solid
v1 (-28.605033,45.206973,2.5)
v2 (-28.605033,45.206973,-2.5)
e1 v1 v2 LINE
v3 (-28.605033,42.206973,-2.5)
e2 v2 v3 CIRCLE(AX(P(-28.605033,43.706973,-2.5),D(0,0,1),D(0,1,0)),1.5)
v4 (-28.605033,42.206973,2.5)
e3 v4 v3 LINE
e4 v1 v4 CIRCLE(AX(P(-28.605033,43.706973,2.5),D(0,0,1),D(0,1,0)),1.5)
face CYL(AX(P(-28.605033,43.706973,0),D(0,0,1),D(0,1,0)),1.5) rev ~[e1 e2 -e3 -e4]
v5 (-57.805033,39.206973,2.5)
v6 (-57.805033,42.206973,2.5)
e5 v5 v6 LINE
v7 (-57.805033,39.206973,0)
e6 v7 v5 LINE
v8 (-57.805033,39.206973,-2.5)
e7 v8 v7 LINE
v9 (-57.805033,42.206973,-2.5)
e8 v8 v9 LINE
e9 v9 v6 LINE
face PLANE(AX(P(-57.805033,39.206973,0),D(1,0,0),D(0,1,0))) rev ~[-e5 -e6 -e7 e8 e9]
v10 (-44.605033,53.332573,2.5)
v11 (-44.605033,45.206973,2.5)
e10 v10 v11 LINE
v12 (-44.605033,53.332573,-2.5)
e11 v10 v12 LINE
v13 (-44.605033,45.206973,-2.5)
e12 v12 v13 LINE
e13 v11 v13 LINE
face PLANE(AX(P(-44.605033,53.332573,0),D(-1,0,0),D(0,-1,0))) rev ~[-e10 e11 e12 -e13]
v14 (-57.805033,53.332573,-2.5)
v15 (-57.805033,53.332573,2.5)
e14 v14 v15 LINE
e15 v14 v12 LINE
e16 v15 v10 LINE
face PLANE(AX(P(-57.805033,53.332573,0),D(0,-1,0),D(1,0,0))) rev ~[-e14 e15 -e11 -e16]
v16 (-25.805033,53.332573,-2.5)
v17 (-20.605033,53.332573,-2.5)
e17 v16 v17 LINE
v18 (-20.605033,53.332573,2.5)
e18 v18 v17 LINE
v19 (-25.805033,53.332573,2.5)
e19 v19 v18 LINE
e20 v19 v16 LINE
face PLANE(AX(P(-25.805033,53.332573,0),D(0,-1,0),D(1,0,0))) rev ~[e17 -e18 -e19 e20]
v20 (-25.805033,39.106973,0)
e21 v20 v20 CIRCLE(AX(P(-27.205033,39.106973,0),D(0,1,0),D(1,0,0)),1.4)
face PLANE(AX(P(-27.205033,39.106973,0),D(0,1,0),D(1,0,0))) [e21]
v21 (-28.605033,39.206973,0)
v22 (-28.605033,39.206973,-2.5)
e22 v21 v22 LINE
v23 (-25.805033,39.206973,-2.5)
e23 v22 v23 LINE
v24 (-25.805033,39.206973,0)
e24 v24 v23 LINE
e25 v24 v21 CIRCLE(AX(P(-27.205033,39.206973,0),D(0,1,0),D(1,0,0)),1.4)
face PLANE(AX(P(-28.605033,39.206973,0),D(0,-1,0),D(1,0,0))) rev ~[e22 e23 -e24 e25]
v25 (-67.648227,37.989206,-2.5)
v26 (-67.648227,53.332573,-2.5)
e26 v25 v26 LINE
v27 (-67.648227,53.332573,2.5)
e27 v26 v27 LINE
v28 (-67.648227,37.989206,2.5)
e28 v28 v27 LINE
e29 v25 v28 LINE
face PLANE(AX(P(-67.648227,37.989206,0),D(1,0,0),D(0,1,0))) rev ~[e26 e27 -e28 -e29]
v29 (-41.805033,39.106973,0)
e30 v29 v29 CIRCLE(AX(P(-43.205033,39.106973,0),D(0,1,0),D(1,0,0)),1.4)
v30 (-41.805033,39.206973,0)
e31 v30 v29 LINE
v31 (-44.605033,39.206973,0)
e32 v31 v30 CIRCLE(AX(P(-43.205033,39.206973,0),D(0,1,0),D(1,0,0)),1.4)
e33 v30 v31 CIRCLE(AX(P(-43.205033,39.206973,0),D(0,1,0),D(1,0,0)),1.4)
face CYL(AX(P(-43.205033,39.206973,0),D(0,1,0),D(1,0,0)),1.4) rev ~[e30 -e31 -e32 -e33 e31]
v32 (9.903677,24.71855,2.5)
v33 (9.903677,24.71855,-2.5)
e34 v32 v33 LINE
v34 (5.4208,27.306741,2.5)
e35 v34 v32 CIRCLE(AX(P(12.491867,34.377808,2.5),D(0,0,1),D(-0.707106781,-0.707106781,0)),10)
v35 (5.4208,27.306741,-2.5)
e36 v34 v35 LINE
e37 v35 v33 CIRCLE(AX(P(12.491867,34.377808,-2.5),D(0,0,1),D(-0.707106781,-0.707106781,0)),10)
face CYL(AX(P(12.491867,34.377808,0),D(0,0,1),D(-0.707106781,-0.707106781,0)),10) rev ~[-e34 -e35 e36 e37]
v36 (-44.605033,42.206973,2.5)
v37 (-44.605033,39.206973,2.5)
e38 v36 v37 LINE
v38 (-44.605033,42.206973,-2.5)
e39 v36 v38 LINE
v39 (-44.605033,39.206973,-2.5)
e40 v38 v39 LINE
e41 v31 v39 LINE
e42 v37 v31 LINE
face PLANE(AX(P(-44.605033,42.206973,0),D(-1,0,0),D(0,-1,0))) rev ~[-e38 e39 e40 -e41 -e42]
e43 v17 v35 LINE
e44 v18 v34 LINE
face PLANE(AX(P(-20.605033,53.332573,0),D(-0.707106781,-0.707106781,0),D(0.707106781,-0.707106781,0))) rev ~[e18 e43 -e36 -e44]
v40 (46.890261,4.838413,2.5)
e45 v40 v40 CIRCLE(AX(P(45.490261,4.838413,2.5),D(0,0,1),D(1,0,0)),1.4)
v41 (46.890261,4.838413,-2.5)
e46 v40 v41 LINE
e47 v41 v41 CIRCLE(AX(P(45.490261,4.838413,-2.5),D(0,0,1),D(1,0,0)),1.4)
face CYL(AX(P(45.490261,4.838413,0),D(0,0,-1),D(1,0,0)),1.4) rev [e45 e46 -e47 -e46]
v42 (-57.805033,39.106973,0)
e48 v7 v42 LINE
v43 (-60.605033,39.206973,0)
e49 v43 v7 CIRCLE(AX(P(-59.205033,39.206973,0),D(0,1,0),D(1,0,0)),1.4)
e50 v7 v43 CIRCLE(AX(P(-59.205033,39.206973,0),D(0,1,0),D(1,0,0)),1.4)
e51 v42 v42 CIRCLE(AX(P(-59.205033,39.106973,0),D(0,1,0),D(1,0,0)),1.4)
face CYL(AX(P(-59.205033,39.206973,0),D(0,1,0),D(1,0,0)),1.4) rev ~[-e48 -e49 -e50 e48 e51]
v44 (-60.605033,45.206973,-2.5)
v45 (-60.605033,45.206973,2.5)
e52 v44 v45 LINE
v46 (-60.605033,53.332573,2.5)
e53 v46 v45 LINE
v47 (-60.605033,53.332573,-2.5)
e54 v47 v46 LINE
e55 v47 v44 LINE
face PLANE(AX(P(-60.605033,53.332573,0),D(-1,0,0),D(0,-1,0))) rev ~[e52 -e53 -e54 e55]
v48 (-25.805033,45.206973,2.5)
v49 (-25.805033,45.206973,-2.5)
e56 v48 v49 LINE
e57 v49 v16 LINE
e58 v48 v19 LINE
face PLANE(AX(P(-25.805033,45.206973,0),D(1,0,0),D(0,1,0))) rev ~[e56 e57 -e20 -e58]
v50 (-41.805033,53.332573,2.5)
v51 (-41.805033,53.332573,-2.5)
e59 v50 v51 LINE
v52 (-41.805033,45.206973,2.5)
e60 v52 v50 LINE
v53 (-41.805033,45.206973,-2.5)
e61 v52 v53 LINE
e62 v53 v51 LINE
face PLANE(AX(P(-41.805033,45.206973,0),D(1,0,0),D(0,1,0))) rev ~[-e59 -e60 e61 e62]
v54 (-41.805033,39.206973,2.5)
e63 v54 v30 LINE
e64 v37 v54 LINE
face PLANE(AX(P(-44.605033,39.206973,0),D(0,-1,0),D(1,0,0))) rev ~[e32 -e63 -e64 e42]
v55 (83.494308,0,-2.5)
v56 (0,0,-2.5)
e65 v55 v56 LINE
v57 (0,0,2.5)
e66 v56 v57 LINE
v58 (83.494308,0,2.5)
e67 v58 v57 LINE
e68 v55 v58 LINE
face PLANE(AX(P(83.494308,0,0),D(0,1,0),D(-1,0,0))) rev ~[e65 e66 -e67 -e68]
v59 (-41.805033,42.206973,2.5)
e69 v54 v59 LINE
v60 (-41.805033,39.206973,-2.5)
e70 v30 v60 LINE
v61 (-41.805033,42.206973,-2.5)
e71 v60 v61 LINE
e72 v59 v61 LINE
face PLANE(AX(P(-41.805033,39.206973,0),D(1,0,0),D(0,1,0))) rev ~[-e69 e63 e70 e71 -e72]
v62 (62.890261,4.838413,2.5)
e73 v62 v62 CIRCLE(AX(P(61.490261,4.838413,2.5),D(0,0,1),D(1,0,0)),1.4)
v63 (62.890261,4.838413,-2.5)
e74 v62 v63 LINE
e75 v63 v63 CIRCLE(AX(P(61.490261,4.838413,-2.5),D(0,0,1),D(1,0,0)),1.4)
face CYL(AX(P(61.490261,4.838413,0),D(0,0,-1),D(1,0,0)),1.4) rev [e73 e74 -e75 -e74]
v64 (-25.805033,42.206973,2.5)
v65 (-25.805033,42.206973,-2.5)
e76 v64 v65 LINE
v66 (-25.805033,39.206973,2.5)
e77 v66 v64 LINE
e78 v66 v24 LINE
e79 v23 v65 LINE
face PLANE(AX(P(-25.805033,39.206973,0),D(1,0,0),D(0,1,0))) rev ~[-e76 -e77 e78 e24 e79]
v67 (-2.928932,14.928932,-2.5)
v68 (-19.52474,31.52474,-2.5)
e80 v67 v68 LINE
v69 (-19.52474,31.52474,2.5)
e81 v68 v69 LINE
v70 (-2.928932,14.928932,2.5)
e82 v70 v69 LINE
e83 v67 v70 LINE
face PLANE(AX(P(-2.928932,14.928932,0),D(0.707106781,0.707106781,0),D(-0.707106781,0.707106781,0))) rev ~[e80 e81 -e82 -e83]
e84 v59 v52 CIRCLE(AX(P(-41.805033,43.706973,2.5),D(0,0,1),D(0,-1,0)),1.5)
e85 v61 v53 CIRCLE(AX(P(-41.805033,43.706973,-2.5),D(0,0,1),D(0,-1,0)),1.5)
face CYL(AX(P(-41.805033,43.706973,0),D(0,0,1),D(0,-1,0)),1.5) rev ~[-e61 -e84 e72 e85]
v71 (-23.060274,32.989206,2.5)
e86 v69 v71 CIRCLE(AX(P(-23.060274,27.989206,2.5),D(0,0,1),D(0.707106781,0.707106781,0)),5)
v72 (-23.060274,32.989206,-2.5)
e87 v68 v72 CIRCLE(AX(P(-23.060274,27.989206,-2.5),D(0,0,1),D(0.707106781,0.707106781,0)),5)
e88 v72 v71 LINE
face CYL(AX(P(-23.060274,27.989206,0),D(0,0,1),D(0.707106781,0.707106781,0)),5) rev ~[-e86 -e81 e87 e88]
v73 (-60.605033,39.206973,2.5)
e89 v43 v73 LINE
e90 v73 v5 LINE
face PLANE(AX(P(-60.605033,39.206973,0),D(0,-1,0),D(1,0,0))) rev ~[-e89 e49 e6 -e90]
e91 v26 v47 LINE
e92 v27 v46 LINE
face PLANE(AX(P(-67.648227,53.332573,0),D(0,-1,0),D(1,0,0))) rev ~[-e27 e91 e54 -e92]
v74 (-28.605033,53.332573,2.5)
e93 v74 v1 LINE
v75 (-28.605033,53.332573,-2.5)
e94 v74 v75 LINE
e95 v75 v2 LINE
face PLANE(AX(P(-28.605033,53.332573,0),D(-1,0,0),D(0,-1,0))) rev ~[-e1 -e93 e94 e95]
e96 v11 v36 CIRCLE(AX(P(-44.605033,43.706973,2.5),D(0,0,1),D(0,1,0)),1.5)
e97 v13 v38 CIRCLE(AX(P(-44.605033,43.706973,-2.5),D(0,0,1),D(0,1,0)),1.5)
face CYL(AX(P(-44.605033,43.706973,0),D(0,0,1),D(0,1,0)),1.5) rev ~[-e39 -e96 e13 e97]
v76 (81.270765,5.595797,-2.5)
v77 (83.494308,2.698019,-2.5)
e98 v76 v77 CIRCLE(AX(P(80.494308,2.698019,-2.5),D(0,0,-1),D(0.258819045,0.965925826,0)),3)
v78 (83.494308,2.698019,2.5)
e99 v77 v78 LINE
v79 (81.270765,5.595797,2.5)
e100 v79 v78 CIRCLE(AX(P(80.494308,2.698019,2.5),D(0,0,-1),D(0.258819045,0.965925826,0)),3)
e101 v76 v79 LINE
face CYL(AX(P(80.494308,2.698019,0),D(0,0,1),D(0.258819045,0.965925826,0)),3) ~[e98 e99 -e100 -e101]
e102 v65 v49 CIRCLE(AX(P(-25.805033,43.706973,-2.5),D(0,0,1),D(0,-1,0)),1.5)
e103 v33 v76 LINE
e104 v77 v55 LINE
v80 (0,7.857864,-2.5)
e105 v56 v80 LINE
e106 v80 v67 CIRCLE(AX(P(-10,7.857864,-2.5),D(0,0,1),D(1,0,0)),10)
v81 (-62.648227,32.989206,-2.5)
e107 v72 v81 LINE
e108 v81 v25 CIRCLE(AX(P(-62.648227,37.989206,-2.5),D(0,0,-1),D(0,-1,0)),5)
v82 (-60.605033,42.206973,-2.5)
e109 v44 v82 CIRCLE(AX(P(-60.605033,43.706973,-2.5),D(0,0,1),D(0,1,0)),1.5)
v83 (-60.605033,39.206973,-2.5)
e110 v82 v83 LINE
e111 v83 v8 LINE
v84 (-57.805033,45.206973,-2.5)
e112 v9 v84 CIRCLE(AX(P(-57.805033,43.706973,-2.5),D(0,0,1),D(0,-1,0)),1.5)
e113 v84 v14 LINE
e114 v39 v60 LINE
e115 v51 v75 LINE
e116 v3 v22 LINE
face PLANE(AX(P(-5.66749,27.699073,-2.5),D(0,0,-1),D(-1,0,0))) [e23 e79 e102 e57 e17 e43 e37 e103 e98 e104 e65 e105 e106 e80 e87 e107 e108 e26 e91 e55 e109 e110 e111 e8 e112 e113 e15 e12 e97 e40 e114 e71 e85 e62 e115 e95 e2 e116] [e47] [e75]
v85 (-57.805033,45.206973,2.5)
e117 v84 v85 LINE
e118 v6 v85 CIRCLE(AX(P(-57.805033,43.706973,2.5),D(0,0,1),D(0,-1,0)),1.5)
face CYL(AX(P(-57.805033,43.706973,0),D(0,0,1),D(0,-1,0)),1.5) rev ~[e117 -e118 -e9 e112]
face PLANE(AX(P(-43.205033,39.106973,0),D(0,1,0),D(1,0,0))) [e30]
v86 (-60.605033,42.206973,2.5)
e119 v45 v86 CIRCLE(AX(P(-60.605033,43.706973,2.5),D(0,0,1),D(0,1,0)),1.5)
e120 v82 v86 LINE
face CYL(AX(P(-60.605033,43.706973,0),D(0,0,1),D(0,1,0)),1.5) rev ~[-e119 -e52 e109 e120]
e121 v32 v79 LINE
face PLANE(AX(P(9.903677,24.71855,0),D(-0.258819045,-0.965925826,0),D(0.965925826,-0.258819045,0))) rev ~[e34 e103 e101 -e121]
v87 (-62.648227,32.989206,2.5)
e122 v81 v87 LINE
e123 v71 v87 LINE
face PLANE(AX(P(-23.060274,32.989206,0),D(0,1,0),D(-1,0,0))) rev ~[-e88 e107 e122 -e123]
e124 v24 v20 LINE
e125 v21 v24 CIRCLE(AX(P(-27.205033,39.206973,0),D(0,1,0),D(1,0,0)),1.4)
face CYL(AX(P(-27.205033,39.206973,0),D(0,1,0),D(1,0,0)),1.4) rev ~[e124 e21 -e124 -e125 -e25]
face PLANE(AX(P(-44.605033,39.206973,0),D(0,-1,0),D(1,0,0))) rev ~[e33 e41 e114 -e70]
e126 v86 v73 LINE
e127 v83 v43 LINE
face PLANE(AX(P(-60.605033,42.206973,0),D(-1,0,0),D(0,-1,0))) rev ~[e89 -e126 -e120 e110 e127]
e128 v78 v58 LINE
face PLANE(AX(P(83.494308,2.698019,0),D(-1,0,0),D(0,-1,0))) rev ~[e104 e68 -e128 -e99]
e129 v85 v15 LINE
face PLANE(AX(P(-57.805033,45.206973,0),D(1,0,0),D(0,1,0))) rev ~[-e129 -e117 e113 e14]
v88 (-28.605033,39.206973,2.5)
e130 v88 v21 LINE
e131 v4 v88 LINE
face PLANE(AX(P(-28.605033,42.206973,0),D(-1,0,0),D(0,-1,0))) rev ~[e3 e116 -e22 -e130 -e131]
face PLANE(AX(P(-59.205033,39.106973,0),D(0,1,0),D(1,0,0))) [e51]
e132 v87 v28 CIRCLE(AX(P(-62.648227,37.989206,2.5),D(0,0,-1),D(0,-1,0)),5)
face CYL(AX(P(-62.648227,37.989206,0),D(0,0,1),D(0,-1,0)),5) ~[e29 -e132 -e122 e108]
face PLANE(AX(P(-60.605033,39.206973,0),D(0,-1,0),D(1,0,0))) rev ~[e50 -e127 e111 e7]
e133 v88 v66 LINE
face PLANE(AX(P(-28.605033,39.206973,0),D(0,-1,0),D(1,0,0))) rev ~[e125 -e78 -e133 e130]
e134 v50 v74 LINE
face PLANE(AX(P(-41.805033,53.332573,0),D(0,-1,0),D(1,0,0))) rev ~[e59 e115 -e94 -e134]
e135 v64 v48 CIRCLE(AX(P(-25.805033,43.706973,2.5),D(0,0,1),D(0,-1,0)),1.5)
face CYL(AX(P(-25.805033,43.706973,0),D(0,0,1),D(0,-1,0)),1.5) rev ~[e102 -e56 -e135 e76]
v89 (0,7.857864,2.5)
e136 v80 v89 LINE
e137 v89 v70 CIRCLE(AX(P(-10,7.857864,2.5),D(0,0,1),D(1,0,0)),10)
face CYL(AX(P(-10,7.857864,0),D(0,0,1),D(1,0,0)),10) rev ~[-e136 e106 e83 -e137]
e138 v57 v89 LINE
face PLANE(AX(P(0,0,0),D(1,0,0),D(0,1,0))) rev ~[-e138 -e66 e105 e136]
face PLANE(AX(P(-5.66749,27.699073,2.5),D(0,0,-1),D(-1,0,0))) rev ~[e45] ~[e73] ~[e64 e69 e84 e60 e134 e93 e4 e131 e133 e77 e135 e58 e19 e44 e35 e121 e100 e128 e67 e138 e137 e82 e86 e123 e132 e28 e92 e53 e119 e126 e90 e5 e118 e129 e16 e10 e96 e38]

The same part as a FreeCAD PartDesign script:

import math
import FreeCAD as App
import Part
import Sketcher

V = App.Vector
Q = App.Units.Quantity

doc = App.newDocument("Part")
body = doc.addObject("PartDesign::Body", "Body")

sketch1 = body.newObject("Sketcher::SketchObject", "Sketch")
sketch1.AttachmentSupport = (doc.getObject("XY_Plane"), [""])
sketch1.MapMode = "FlatFace"
sketch1.addGeometry([
    Part.LineSegment(V(-44.6, 53.3, 0), V(-57.8, 53.3, 0)),
    Part.LineSegment(V(-57.8, 53.3, 0), V(-57.8, 45.2, 0)),
    Part.ArcOfCircle(Part.Circle(V(-57.8, 43.7, 0), V(0, 0, 1), 1.5), math.radians(-90), math.radians(90)),
    Part.LineSegment(V(-57.8, 42.2, 0), V(-57.8, 39.2, 0)),
    Part.LineSegment(V(-57.8, 39.2, 0), V(-60.6, 39.2, 0)),
    Part.LineSegment(V(-60.6, 39.2, 0), V(-60.6, 42.2, 0)),
    Part.ArcOfCircle(Part.Circle(V(-60.6, 43.7, 0), V(0, 0, 1), 1.5), math.radians(90), math.radians(270)),
    Part.LineSegment(V(-60.6, 45.2, 0), V(-60.6, 53.3, 0)),
    Part.LineSegment(V(-60.6, 53.3, 0), V(-67.6, 53.3, 0)),
    Part.LineSegment(V(-67.6, 53.3, 0), V(-67.6, 38, 0)),
    Part.ArcOfCircle(Part.Circle(V(-62.6, 38, 0), V(0, 0, 1), 5), math.radians(-180), math.radians(-90)),
    Part.LineSegment(V(-62.6, 33, 0), V(-23.1, 33, 0)),
    Part.ArcOfCircle(Part.Circle(V(-23.1, 28, 0), V(0, 0, 1), 5), math.radians(45), math.radians(90)),
    Part.LineSegment(V(-19.5, 31.5, 0), V(-2.9, 14.9, 0)),
    Part.ArcOfCircle(Part.Circle(V(-10, 7.9, 0), V(0, 0, 1), 10), math.radians(0), math.radians(45)),
    Part.LineSegment(V(0, 7.9, 0), V(0, 0, 0)),
    Part.LineSegment(V(0, 0, 0), V(83.5, 0, 0)),
    Part.LineSegment(V(83.5, 0, 0), V(83.5, 2.7, 0)),
    Part.ArcOfCircle(Part.Circle(V(80.5, 2.7, 0), V(0, 0, 1), 3), math.radians(0), math.radians(75)),
    Part.LineSegment(V(81.3, 5.6, 0), V(9.9, 24.7, 0)),
    Part.ArcOfCircle(Part.Circle(V(12.5, 34.4, 0), V(0, 0, 1), 10), math.radians(-135), math.radians(-105)),
    Part.LineSegment(V(5.4, 27.3, 0), V(-20.6, 53.3, 0)),
    Part.LineSegment(V(-20.6, 53.3, 0), V(-25.8, 53.3, 0)),
    Part.LineSegment(V(-25.8, 53.3, 0), V(-25.8, 45.2, 0)),
    Part.ArcOfCircle(Part.Circle(V(-25.8, 43.7, 0), V(0, 0, 1), 1.5), math.radians(-90), math.radians(90)),
    Part.LineSegment(V(-25.8, 42.2, 0), V(-25.8, 39.2, 0)),
    Part.LineSegment(V(-25.8, 39.2, 0), V(-28.6, 39.2, 0)),
    Part.LineSegment(V(-28.6, 39.2, 0), V(-28.6, 42.2, 0)),
    Part.ArcOfCircle(Part.Circle(V(-28.6, 43.7, 0), V(0, 0, 1), 1.5), math.radians(90), math.radians(270)),
    Part.LineSegment(V(-28.6, 45.2, 0), V(-28.6, 53.3, 0)),
    Part.LineSegment(V(-28.6, 53.3, 0), V(-41.8, 53.3, 0)),
    Part.LineSegment(V(-41.8, 53.3, 0), V(-41.8, 45.2, 0)),
    Part.ArcOfCircle(Part.Circle(V(-41.8, 43.7, 0), V(0, 0, 1), 1.5), math.radians(-90), math.radians(90)),
    Part.LineSegment(V(-41.8, 42.2, 0), V(-41.8, 39.2, 0)),
    Part.LineSegment(V(-41.8, 39.2, 0), V(-44.6, 39.2, 0)),
    Part.LineSegment(V(-44.6, 39.2, 0), V(-44.6, 42.2, 0)),
    Part.ArcOfCircle(Part.Circle(V(-44.6, 43.7, 0), V(0, 0, 1), 1.5), math.radians(90), math.radians(270)),
    Part.LineSegment(V(-44.6, 45.2, 0), V(-44.6, 53.3, 0)),
    Part.Circle(V(61.5, 4.8, 0), V(0, 0, 1), 1.4),
    Part.Circle(V(45.5, 4.8, 0), V(0, 0, 1), 1.4),
], False)
sketch1.addConstraint([
    Sketcher.Constraint("Coincident", 0, 2, 1, 1),
    Sketcher.Constraint("Coincident", 1, 2, 2, 2),
    Sketcher.Constraint("Coincident", 2, 1, 3, 1),
    Sketcher.Constraint("Coincident", 3, 2, 4, 1),
    Sketcher.Constraint("Coincident", 4, 2, 5, 1),
    Sketcher.Constraint("Coincident", 5, 2, 6, 2),
    Sketcher.Constraint("Coincident", 6, 1, 7, 1),
    Sketcher.Constraint("Coincident", 7, 2, 8, 1),
    Sketcher.Constraint("Coincident", 8, 2, 9, 1),
    Sketcher.Constraint("Tangent", 9, 2, 10, 1),
    Sketcher.Constraint("Tangent", 10, 2, 11, 1),
    Sketcher.Constraint("Tangent", 11, 2, 12, 2),
    Sketcher.Constraint("Tangent", 12, 1, 13, 1),
    Sketcher.Constraint("Tangent", 13, 2, 14, 2),
    Sketcher.Constraint("Tangent", 14, 1, 15, 1),
    Sketcher.Constraint("Coincident", 15, 2, 16, 1),
    Sketcher.Constraint("Coincident", 16, 2, 17, 1),
    Sketcher.Constraint("Tangent", 17, 2, 18, 1),
    Sketcher.Constraint("Tangent", 18, 2, 19, 1),
    Sketcher.Constraint("Tangent", 19, 2, 20, 2),
    Sketcher.Constraint("Tangent", 20, 1, 21, 1),
    Sketcher.Constraint("Coincident", 21, 2, 22, 1),
    Sketcher.Constraint("Coincident", 22, 2, 23, 1),
    Sketcher.Constraint("Coincident", 23, 2, 24, 2),
    Sketcher.Constraint("Coincident", 24, 1, 25, 1),
    Sketcher.Constraint("Coincident", 25, 2, 26, 1),
    Sketcher.Constraint("Coincident", 26, 2, 27, 1),
    Sketcher.Constraint("Coincident", 27, 2, 28, 2),
    Sketcher.Constraint("Coincident", 28, 1, 29, 1),
    Sketcher.Constraint("Coincident", 29, 2, 30, 1),
    Sketcher.Constraint("Coincident", 30, 2, 31, 1),
    Sketcher.Constraint("Coincident", 31, 2, 32, 2),
    Sketcher.Constraint("Coincident", 32, 1, 33, 1),
    Sketcher.Constraint("Coincident", 33, 2, 34, 1),
    Sketcher.Constraint("Coincident", 34, 2, 35, 1),
    Sketcher.Constraint("Coincident", 35, 2, 36, 2),
    Sketcher.Constraint("Coincident", 36, 1, 37, 1),
    Sketcher.Constraint("Coincident", 37, 2, 0, 1),
    Sketcher.Constraint("Horizontal", 0),
    Sketcher.Constraint("Vertical", 1),
    Sketcher.Constraint("Vertical", 3),
    Sketcher.Constraint("Horizontal", 4),
    Sketcher.Constraint("Vertical", 5),
    Sketcher.Constraint("Vertical", 7),
    Sketcher.Constraint("Horizontal", 8),
    Sketcher.Constraint("Vertical", 9),
    Sketcher.Constraint("Horizontal", 11),
    Sketcher.Constraint("Vertical", 15),
    Sketcher.Constraint("Horizontal", 16),
    Sketcher.Constraint("Vertical", 17),
    Sketcher.Constraint("Horizontal", 22),
    Sketcher.Constraint("Vertical", 23),
    Sketcher.Constraint("Vertical", 25),
    Sketcher.Constraint("Horizontal", 26),
    Sketcher.Constraint("Vertical", 27),
    Sketcher.Constraint("Vertical", 29),
    Sketcher.Constraint("Horizontal", 30),
    Sketcher.Constraint("Vertical", 31),
    Sketcher.Constraint("Vertical", 33),
    Sketcher.Constraint("Horizontal", 34),
    Sketcher.Constraint("Vertical", 35),
    Sketcher.Constraint("Vertical", 37),
    Sketcher.Constraint("Coincident", 15, 2, -1, 1),
    Sketcher.Constraint("Equal", 2, 6),
    Sketcher.Constraint("Equal", 10, 12),
    Sketcher.Constraint("Equal", 14, 20),
    Sketcher.Constraint("Equal", 6, 24),
    Sketcher.Constraint("Equal", 24, 28),
    Sketcher.Constraint("Equal", 28, 32),
    Sketcher.Constraint("Equal", 32, 36),
    Sketcher.Constraint("Equal", 38, 39),
    Sketcher.Constraint("Parallel", 13, 21),
    Sketcher.Constraint("Horizontal", 2, 3, 6, 3),
    Sketcher.Constraint("Horizontal", 6, 3, 24, 3),
    Sketcher.Constraint("Horizontal", 24, 3, 28, 3),
    Sketcher.Constraint("Horizontal", 28, 3, 32, 3),
    Sketcher.Constraint("Horizontal", 32, 3, 36, 3),
    Sketcher.Constraint("Horizontal", 38, 3, 39, 3),
    Sketcher.Constraint("Horizontal", 0, 2, 7, 2),
    Sketcher.Constraint("Horizontal", 8, 2, 21, 2),
    Sketcher.Constraint("Horizontal", 4, 2, 25, 2),
    Sketcher.Constraint("Horizontal", 22, 2, 29, 2),
    Sketcher.Constraint("Horizontal", 26, 2, 33, 2),
    Sketcher.Constraint("Vertical", 2, 3, 0, 2),
    Sketcher.Constraint("Vertical", 1, 2, 2, 1),
    Sketcher.Constraint("Vertical", 6, 3, 4, 2),
    Sketcher.Constraint("Vertical", 5, 2, 6, 1),
    Sketcher.Constraint("Vertical", 24, 3, 22, 2),
    Sketcher.Constraint("Vertical", 23, 2, 24, 1),
    Sketcher.Constraint("Vertical", 28, 3, 26, 2),
    Sketcher.Constraint("Vertical", 27, 2, 28, 1),
    Sketcher.Constraint("Vertical", 32, 3, 30, 2),
    Sketcher.Constraint("Vertical", 31, 2, 32, 1),
    Sketcher.Constraint("Vertical", 36, 3, 34, 2),
    Sketcher.Constraint("Vertical", 35, 2, 36, 1),
    Sketcher.Constraint("Equal", 4, 26),
    Sketcher.Constraint("Equal", 0, 30),
    Sketcher.Constraint("Equal", 26, 34),
    Sketcher.Constraint("Radius", 10, 5.0),
    Sketcher.Constraint("Radius", 14, 10.0),
    Sketcher.Constraint("Radius", 18, 3.0),
    Sketcher.Constraint("Diameter", 38, 2.8),
    Sketcher.Constraint("Radius", 2, 1.5),
    Sketcher.Constraint("DistanceY", 3, 2, 3, 1, 3.0),
    Sketcher.Constraint("Angle", 13, Q("-45 deg")),
    Sketcher.Constraint("Angle", 19, Q("165 deg")),
    Sketcher.Constraint("DistanceX", 0, 2, 0, 1, 13.2),
    Sketcher.Constraint("DistanceX", 4, 2, 4, 1, 2.8),
    Sketcher.Constraint("DistanceX", 22, 2, 22, 1, 5.2),
    Sketcher.Constraint("DistanceX", 39, 3, 38, 3, 16.0),
    Sketcher.Constraint("DistanceY", 1, 2, 1, 1, 8.1256),
    Sketcher.Constraint("DistanceY", 17, 1, 17, 2, 2.698019),
    Sketcher.Constraint("DistanceX", -1, 1, 20, 1, 5.4208),
    Sketcher.Constraint("DistanceY", 12, 3, 20, 3, 6.388602),
    Sketcher.Constraint("DistanceX", 2, 3, 20, 3, 70.2969),
    Sketcher.Constraint("DistanceX", 8, 2, 8, 1, 7.043194),
    Sketcher.Constraint("DistanceX", 11, 1, 11, 2, 39.587953),
    Sketcher.Constraint("DistanceX", 16, 1, 16, 2, 83.494308),
    Sketcher.Constraint("DistanceX", -1, 1, 38, 3, 61.490261),
    Sketcher.Constraint("DistanceY", 38, 3, 14, 3, 3.019452),
])
pad1 = body.newObject("PartDesign::Pad", "Pad")
pad1.Profile = sketch1
pad1.Length = 5
pad1.Midplane = True

sketch2 = body.newObject("Sketcher::SketchObject", "Sketch001")
sketch2.AttachmentSupport = (doc.getObject("XZ_Plane"), [""])
sketch2.MapMode = "FlatFace"
sketch2.AttachmentOffset = App.Placement(V(0, 0, -39.206973), App.Rotation())
sketch2.addGeometry([
    Part.Circle(V(-59.2, 0, 0), V(0, 0, 1), 1.4),
    Part.Circle(V(-43.2, 0, 0), V(0, 0, 1), 1.4),
    Part.Circle(V(-27.2, 0, 0), V(0, 0, 1), 1.4),
], False)
sketch2.addConstraint([
    Sketcher.Constraint("Equal", 0, 1),
    Sketcher.Constraint("Equal", 1, 2),
    Sketcher.Constraint("PointOnObject", 0, 3, -1),
    Sketcher.Constraint("PointOnObject", 1, 3, -1),
    Sketcher.Constraint("PointOnObject", 2, 3, -1),
    Sketcher.Constraint("Diameter", 0, 2.8),
    Sketcher.Constraint("DistanceX", 0, 3, 1, 3, 16.0),
    Sketcher.Constraint("DistanceX", 1, 3, 2, 3, 16.0),
    Sketcher.Constraint("DistanceX", 0, 3, -1, 1, 59.205033),
])
pocket1 = body.newObject("PartDesign::Pocket", "Pocket")
pocket1.Profile = sketch2
pocket1.Length = 0.1
pocket1.Reversed = True

doc.recompute()
